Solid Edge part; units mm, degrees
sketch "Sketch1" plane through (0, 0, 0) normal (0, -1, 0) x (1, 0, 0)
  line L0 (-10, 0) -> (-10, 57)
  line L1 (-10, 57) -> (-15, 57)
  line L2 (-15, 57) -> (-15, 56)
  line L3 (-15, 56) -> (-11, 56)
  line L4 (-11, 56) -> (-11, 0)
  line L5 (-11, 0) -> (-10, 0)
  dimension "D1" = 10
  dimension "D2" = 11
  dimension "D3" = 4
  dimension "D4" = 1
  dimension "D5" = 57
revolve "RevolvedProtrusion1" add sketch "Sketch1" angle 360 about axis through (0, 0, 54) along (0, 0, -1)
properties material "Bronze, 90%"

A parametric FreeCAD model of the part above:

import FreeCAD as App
import Part
import Sketcher

V = App.Vector
Q = App.Units.Quantity


def add_polygon(sketch, points):
    """Adds a closed chain of lines whose ends are joined by coincident constraints."""
    first, n = sketch.GeometryCount, len(points)
    for a, b in zip(points, points[1:] + points[:1]):
        sketch.addGeometry(Part.LineSegment(App.Vector(*a, 0), App.Vector(*b, 0)), False)
    for i in range(n):
        sketch.addConstraint(Sketcher.Constraint("Coincident", first + i, 2, first + (i + 1) % n, 1))

doc = App.newDocument("Part")
body = doc.addObject("PartDesign::Body", "Body")

# Sketch on XZ plane
sketch1 = doc.addObject("Sketcher::SketchObject", "Sketch")
body.addObject(sketch1)
sketch1.AttachmentSupport = (doc.XZ_Plane, [""])
sketch1.MapMode = "FlatFace"
add_polygon(sketch1, [(-11, 0), (-10, 0), (-10, 57), (-15, 57), (-15, 56), (-11, 56)])  # lines 0-5
sketch1.addConstraint(Sketcher.Constraint("Horizontal", 0))
sketch1.addConstraint(Sketcher.Constraint("Vertical", 1))
sketch1.addConstraint(Sketcher.Constraint("Horizontal", 2))
sketch1.addConstraint(Sketcher.Constraint("Vertical", 3))
sketch1.addConstraint(Sketcher.Constraint("Horizontal", 4))
sketch1.addConstraint(Sketcher.Constraint("Vertical", 5))
sketch1.addConstraint(Sketcher.Constraint("PointOnObject", 0, 2, -1))
sketch1.addConstraint(Sketcher.Constraint("Equal", 0, 3))
sketch1.addConstraint(Sketcher.Constraint("DistanceX", 0, 2, -1, 1, Q("10 mm")))
sketch1.addConstraint(Sketcher.Constraint("DistanceX", 2, 2, -1, 1, Q("15 mm")))
sketch1.addConstraint(Sketcher.Constraint("DistanceX", 0, 1, 0, 2, Q("1 mm")))
sketch1.addConstraint(Sketcher.Constraint("DistanceY", 1, 1, 1, 2, Q("57 mm")))
revolution = doc.addObject("PartDesign::Revolution", "Revolution")
body.addObject(revolution)
revolution.Profile = sketch1
revolution.ReferenceAxis = (sketch1, ["V_Axis"])
revolution.Angle = 360

doc.recompute()
